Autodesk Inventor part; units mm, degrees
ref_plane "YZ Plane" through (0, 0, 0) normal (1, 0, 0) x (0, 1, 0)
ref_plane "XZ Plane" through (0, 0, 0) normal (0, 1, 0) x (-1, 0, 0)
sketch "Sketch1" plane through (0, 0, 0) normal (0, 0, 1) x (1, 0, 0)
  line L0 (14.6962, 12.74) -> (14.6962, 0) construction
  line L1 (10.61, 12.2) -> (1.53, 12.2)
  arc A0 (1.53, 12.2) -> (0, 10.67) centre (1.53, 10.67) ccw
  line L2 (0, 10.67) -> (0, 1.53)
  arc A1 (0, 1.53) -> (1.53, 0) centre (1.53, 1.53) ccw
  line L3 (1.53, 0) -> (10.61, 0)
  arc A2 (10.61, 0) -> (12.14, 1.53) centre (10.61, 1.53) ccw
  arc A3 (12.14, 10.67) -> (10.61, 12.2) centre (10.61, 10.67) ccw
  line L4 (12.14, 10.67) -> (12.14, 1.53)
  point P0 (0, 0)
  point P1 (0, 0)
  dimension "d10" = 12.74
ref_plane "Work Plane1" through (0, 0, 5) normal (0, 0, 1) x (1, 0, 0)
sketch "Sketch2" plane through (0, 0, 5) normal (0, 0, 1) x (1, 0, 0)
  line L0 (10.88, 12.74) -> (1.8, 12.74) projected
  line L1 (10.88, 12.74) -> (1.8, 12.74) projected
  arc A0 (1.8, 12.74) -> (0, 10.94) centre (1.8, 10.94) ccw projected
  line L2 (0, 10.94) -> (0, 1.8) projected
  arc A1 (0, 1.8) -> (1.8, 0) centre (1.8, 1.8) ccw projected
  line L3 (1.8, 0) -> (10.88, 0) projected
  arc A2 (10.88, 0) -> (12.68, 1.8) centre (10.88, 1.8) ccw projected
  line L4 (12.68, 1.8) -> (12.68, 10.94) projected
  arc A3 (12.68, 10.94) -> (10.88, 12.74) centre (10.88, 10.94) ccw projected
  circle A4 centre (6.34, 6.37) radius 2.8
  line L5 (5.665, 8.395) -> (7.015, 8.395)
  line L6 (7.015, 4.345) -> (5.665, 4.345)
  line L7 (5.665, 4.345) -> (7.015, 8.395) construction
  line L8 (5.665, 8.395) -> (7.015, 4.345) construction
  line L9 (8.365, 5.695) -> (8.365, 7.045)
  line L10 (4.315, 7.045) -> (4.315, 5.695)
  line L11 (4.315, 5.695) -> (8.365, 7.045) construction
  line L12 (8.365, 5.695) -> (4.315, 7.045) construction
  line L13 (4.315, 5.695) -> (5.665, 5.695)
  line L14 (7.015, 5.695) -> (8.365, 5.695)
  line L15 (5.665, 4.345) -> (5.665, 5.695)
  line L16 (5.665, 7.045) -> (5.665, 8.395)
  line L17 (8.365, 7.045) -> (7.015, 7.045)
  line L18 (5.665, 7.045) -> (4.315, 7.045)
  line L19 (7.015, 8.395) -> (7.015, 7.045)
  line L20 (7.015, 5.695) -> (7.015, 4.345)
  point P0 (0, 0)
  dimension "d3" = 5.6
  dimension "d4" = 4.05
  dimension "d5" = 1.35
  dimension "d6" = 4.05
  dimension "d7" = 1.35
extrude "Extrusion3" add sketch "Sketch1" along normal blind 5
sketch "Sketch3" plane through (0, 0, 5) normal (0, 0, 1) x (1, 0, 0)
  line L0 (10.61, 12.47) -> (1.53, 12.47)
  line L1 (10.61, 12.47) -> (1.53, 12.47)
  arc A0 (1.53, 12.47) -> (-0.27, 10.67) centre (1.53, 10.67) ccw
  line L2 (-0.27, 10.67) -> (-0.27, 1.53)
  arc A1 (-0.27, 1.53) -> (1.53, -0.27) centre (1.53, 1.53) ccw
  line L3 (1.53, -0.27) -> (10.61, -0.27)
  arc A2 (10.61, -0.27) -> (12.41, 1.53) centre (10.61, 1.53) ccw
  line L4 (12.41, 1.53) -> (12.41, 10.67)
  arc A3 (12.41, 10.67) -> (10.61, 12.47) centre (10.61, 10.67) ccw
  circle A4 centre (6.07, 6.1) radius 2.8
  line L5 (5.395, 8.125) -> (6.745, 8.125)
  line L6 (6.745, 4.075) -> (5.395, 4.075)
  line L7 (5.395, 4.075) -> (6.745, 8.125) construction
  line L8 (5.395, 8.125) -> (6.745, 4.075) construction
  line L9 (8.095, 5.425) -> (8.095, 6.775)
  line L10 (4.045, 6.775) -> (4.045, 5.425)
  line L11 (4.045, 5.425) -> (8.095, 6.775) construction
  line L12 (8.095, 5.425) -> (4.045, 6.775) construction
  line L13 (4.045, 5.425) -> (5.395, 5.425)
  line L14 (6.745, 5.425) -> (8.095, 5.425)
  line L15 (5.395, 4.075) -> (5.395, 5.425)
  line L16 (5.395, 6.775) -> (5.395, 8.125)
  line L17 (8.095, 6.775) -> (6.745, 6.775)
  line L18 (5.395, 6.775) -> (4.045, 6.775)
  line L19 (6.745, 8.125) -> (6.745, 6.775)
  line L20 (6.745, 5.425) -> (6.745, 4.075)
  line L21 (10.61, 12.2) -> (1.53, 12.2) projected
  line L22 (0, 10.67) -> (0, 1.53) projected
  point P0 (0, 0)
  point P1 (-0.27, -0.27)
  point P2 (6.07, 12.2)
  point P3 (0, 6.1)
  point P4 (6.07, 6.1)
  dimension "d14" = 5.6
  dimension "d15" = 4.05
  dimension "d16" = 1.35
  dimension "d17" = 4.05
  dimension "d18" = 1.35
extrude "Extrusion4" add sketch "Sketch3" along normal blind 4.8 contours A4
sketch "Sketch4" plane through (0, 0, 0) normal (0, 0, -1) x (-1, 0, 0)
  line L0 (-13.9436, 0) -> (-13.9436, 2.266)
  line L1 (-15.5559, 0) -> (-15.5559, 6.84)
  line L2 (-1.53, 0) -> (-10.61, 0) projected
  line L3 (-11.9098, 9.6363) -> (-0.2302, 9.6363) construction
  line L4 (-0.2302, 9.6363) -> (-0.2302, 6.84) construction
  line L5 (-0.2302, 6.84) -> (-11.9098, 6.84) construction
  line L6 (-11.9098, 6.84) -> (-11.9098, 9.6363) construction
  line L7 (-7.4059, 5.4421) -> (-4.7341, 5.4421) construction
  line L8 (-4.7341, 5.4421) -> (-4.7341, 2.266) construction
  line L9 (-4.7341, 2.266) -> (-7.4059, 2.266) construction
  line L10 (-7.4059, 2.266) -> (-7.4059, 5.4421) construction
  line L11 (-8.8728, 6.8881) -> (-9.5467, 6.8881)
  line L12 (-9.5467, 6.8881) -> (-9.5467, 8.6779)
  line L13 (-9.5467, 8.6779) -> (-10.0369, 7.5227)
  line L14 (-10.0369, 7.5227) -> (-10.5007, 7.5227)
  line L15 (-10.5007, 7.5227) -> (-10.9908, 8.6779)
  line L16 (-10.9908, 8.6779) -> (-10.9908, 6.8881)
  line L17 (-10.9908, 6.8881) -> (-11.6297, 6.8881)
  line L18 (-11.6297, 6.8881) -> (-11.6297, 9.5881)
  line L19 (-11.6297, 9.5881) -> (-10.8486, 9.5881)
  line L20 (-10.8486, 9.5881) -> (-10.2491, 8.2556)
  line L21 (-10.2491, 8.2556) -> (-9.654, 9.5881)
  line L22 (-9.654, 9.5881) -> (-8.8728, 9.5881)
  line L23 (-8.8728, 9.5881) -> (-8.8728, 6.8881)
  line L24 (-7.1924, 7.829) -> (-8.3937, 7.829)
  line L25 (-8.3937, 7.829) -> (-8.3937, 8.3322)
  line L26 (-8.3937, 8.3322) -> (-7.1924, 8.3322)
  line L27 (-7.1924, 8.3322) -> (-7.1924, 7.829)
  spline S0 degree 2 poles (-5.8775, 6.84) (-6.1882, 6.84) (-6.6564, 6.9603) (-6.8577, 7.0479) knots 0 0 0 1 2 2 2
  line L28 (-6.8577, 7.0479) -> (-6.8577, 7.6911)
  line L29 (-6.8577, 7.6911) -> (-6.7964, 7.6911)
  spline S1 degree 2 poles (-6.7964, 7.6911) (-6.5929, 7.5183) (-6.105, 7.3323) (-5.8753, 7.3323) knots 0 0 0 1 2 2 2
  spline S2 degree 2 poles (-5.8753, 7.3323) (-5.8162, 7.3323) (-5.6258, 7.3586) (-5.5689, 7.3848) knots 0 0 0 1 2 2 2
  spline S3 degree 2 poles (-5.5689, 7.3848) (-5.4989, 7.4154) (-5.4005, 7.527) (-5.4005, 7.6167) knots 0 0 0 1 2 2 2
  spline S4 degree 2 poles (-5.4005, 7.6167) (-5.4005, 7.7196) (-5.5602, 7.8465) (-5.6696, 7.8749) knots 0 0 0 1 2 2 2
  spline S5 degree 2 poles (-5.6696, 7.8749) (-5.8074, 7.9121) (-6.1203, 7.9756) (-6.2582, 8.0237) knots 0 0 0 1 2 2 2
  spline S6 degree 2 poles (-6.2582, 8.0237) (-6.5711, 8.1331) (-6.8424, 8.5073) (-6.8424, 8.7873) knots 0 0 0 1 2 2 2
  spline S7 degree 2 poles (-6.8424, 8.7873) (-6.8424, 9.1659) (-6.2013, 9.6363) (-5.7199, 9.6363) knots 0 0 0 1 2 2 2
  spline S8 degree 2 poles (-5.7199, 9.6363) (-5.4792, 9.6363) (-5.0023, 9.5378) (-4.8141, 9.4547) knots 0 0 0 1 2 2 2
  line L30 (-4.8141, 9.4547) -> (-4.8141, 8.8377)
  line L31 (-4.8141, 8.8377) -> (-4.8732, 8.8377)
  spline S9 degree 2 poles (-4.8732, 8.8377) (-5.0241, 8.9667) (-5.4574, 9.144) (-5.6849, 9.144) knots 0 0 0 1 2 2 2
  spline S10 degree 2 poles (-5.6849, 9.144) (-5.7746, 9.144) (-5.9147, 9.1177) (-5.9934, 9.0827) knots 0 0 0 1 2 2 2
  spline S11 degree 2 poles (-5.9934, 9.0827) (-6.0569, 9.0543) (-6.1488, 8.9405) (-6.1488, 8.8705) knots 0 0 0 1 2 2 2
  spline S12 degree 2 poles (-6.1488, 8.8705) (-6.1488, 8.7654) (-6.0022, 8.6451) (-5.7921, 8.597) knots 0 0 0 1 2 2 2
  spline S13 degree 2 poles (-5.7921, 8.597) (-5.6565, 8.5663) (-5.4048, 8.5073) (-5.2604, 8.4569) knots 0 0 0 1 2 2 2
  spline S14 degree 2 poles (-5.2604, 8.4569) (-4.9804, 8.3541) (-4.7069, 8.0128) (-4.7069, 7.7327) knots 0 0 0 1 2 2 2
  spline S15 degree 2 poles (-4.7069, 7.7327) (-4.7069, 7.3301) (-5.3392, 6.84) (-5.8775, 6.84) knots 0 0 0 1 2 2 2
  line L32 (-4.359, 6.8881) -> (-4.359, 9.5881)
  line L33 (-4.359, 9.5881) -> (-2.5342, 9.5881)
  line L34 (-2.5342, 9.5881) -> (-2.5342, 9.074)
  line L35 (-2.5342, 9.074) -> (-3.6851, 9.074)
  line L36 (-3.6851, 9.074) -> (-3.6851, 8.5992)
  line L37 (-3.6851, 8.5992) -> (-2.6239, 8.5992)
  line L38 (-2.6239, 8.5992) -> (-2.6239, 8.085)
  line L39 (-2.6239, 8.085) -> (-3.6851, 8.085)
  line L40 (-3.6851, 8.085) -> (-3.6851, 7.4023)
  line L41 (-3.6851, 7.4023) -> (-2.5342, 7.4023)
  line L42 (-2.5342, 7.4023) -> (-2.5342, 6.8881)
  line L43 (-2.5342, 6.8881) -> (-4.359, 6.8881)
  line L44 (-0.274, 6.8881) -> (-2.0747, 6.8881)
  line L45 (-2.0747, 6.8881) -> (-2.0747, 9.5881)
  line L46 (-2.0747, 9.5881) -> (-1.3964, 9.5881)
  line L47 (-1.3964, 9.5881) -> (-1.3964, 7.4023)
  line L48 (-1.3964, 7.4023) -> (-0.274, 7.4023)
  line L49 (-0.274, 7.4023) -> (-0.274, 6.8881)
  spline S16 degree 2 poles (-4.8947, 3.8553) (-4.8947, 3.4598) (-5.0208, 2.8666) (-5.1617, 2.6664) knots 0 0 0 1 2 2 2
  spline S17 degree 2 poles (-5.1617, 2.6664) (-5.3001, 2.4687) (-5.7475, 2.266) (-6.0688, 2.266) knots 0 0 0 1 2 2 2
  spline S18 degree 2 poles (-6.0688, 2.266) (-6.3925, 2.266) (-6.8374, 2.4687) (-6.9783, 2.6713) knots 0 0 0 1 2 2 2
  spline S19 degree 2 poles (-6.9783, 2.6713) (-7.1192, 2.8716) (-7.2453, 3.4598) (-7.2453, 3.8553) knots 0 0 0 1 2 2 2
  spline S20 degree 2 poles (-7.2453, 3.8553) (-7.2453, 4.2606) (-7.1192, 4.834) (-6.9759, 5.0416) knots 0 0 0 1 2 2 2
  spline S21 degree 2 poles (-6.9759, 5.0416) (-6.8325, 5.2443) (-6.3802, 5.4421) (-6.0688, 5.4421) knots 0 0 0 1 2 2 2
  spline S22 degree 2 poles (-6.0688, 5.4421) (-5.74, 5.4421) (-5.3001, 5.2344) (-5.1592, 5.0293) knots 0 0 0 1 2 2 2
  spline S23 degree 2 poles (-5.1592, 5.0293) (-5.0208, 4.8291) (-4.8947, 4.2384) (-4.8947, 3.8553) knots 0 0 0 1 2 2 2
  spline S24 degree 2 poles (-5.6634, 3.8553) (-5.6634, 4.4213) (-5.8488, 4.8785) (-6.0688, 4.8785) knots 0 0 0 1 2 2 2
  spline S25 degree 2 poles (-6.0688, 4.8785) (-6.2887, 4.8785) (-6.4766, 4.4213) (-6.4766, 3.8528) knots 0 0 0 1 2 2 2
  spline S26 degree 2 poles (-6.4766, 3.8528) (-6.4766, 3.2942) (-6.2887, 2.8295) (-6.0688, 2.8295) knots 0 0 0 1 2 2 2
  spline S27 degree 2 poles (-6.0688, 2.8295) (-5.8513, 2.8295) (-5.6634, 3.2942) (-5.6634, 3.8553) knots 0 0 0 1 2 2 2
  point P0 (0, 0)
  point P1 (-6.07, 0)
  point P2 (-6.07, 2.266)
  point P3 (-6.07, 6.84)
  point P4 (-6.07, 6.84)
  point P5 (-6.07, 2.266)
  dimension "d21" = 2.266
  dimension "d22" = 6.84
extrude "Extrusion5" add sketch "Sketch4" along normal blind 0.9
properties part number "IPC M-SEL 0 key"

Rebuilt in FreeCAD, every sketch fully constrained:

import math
import FreeCAD as App
import Part
import Sketcher
from FreeCAD import Vector
Q = App.Units.Quantity


def add_polygon(sketch, points):
    """Adds a closed chain of lines whose ends are joined by coincident constraints."""
    first, n = sketch.GeometryCount, len(points)
    for a, b in zip(points, points[1:] + points[:1]):
        sketch.addGeometry(Part.LineSegment(App.Vector(*a, 0), App.Vector(*b, 0)), False)
    for i in range(n):
        sketch.addConstraint(Sketcher.Constraint("Coincident", first + i, 2, first + (i + 1) % n, 1))

doc = App.newDocument("Part")
body = doc.addObject("PartDesign::Body", "Body")

# Sketch on XY plane
sketch1 = body.newObject("Sketcher::SketchObject", "Sketch")
sketch1.AttachmentSupport = (doc.getObject("XY_Plane"), [""])
sketch1.MapMode = "FlatFace"
sketch1.addGeometry([
    Part.ArcOfCircle(Part.Circle(Vector(10.6, 10.7, 0), Vector(0, 0, 1), 1.5), math.radians(0), math.radians(90)),  # 0
    Part.LineSegment(Vector(10.6, 12.2, 0), Vector(1.5, 12.2, 0)),  # 1
    Part.ArcOfCircle(Part.Circle(Vector(1.5, 10.7, 0), Vector(0, 0, 1), 1.5), math.radians(90), math.radians(180)),  # 2
    Part.LineSegment(Vector(0, 10.7, 0), Vector(0, 1.5, 0)),  # 3
    Part.ArcOfCircle(Part.Circle(Vector(1.5, 1.5, 0), Vector(0, 0, 1), 1.5), math.radians(180), math.radians(270)),  # 4
    Part.LineSegment(Vector(1.5, 0, 0), Vector(10.6, 0, 0)),  # 5
    Part.ArcOfCircle(Part.Circle(Vector(10.6, 1.5, 0), Vector(0, 0, 1), 1.5), math.radians(-90), math.radians(0)),  # 6
    Part.LineSegment(Vector(12.1, 1.5, 0), Vector(12.1, 10.7, 0)),  # 7
], False)
sketch1.addConstraint([
    Sketcher.Constraint("Tangent", 0, 2, 1, 1),
    Sketcher.Constraint("Tangent", 1, 2, 2, 1),
    Sketcher.Constraint("Tangent", 2, 2, 3, 1),
    Sketcher.Constraint("Tangent", 3, 2, 4, 1),
    Sketcher.Constraint("Tangent", 4, 2, 5, 1),
    Sketcher.Constraint("Tangent", 5, 2, 6, 1),
    Sketcher.Constraint("Tangent", 6, 2, 7, 1),
    Sketcher.Constraint("Tangent", 7, 2, 0, 1),
    Sketcher.Constraint("Horizontal", 1),
    Sketcher.Constraint("Vertical", 3),
    Sketcher.Constraint("Horizontal", 5),
    Sketcher.Constraint("Vertical", 7),
    Sketcher.Constraint("Equal", 0, 2),
    Sketcher.Constraint("Equal", 2, 4),
    Sketcher.Constraint("Equal", 4, 6),
    Sketcher.Constraint("PointOnObject", 2, 2, -2),
    Sketcher.Constraint("PointOnObject", 4, 2, -1),
    Sketcher.Constraint("Radius", 0, Q("1.53 mm")),
    Sketcher.Constraint("DistanceX", 1, 2, 1, 1, Q("9.08 mm")),
    Sketcher.Constraint("DistanceY", 3, 2, 3, 1, Q("9.14 mm")),
])
pad1 = body.newObject("PartDesign::Pad", "Pad")
pad1.Profile = sketch1
pad1.Length = 5

# Sketch on XY plane
sketch2 = body.newObject("Sketcher::SketchObject", "Sketch001")
sketch2.AttachmentSupport = (doc.getObject("XY_Plane"), [""])
sketch2.MapMode = "FlatFace"
sketch2.AttachmentOffset = App.Placement(Vector(0, 0, 5), App.Rotation())
sketch2.addGeometry(Part.Circle(Vector(6.1, 6.1, 0), Vector(0, 0, 1), 2.8), False)  # 0
add_polygon(sketch2, [(5.4, 6.8), (5.4, 8.1), (6.7, 8.1), (6.7, 6.8), (8.1, 6.8), (8.1, 5.4), (6.7, 5.4), (6.7, 4.1), (5.4, 4.1), (5.4, 5.4), (4, 5.4), (4, 6.8)])  # lines 1-12
sketch2.addConstraint([
    Sketcher.Constraint("Vertical", 1),
    Sketcher.Constraint("Horizontal", 2),
    Sketcher.Constraint("Vertical", 3),
    Sketcher.Constraint("Horizontal", 4),
    Sketcher.Constraint("Vertical", 5),
    Sketcher.Constraint("Horizontal", 6),
    Sketcher.Constraint("Vertical", 7),
    Sketcher.Constraint("Horizontal", 8),
    Sketcher.Constraint("Vertical", 9),
    Sketcher.Constraint("Horizontal", 10),
    Sketcher.Constraint("Vertical", 11),
    Sketcher.Constraint("Horizontal", 12),
    Sketcher.Constraint("Horizontal", 6, 2, 9, 2),
    Sketcher.Constraint("Horizontal", 4, 2, 11, 2),
    Sketcher.Constraint("Vertical", 3, 2, 6, 2),
    Sketcher.Constraint("Vertical", 1, 2, 8, 2),
    Sketcher.Constraint("Equal", 2, 4),
    Sketcher.Constraint("Equal", 8, 10),
    Sketcher.Constraint("Equal", 12, 1),
    Sketcher.Constraint("Equal", 3, 5),
    Sketcher.Constraint("Equal", 5, 7),
    Sketcher.Constraint("Diameter", 0, Q("5.6 mm")),
    Sketcher.Constraint("DistanceX", 2, 1, 2, 2, Q("1.35 mm")),
    Sketcher.Constraint("DistanceY", -1, 1, 0, 3, Q("6.1 mm")),
    Sketcher.Constraint("DistanceX", -1, 1, 0, 3, Q("6.07 mm")),
    Sketcher.Constraint("DistanceX", -1, 1, 1, 2, Q("5.395 mm")),
    Sketcher.Constraint("DistanceY", -1, 1, 1, 2, Q("8.125 mm")),
])
pad2 = body.newObject("PartDesign::Pad", "Pad001")
pad2.Profile = sketch2
pad2.Length = 4.8

# Sketch on XY plane
sketch3 = body.newObject("Sketcher::SketchObject", "Sketch002")
sketch3.AttachmentSupport = (doc.getObject("XY_Plane"), [""])
sketch3.MapMode = "FlatFace"
add_polygon(sketch3, [(9.5467, 6.8881), (8.8728, 6.8881), (8.8728, 9.5881), (9.654, 9.5881), (10.2491, 8.2556), (10.8486, 9.5881), (11.6297, 9.5881), (11.6297, 6.8881), (10.9908, 6.8881), (10.9908, 8.6779), (10.5007, 7.5227), (10.0369, 7.5227), (9.5467, 8.6779)])  # lines 0-12
add_polygon(sketch3, [(8.3937, 7.829), (7.1924, 7.829), (7.1924, 8.3322), (8.3937, 8.3322)])  # lines 13-16
sketch3.addGeometry(Part.BSplineCurve([Vector(5.8775, 6.84, 0), Vector(6.1882, 6.84, 0), Vector(6.6564, 6.9603, 0), Vector(6.8577, 7.0479, 0)], [3, 1, 3], [0, 1, 2], False, 2, [1, 1, 1, 1], False), False)  # 17
sketch3.addGeometry(Part.BSplineCurve([Vector(4.7069, 7.7327, 0), Vector(4.7069, 7.3301, 0), Vector(5.3392, 6.84, 0), Vector(5.8775, 6.84, 0)], [3, 1, 3], [0, 1, 2], False, 2, [1, 1, 1, 1], False), False)  # 18
sketch3.addGeometry(Part.BSplineCurve([Vector(5.2604, 8.4569, 0), Vector(4.9804, 8.3541, 0), Vector(4.7069, 8.0128, 0), Vector(4.7069, 7.7327, 0)], [3, 1, 3], [0, 1, 2], False, 2, [1, 1, 1, 1], False), False)  # 19
sketch3.addGeometry(Part.BSplineCurve([Vector(5.7921, 8.597, 0), Vector(5.6565, 8.5663, 0), Vector(5.4048, 8.5073, 0), Vector(5.2604, 8.4569, 0)], [3, 1, 3], [0, 1, 2], False, 2, [1, 1, 1, 1], False), False)  # 20
sketch3.addGeometry(Part.BSplineCurve([Vector(6.1488, 8.8705, 0), Vector(6.1488, 8.7654, 0), Vector(6.0022, 8.6451, 0), Vector(5.7921, 8.597, 0)], [3, 1, 3], [0, 1, 2], False, 2, [1, 1, 1, 1], False), False)  # 21
sketch3.addGeometry(Part.BSplineCurve([Vector(5.9934, 9.0827, 0), Vector(6.0569, 9.0543, 0), Vector(6.1488, 8.9405, 0), Vector(6.1488, 8.8705, 0)], [3, 1, 3], [0, 1, 2], False, 2, [1, 1, 1, 1], False), False)  # 22
sketch3.addGeometry(Part.BSplineCurve([Vector(5.6849, 9.144, 0), Vector(5.7746, 9.144, 0), Vector(5.9147, 9.1177, 0), Vector(5.9934, 9.0827, 0)], [3, 1, 3], [0, 1, 2], False, 2, [1, 1, 1, 1], False), False)  # 23
sketch3.addGeometry(Part.BSplineCurve([Vector(4.8732, 8.8377, 0), Vector(5.0241, 8.9667, 0), Vector(5.4574, 9.144, 0), Vector(5.6849, 9.144, 0)], [3, 1, 3], [0, 1, 2], False, 2, [1, 1, 1, 1], False), False)  # 24
sketch3.addGeometry(Part.LineSegment(Vector(4.8732, 8.8377, 0), Vector(4.8141, 8.8377, 0)), False)  # 25
sketch3.addGeometry(Part.LineSegment(Vector(4.8141, 8.8377, 0), Vector(4.8141, 9.4547, 0)), False)  # 26
sketch3.addGeometry(Part.BSplineCurve([Vector(5.7199, 9.6363, 0), Vector(5.4792, 9.6363, 0), Vector(5.0023, 9.5378, 0), Vector(4.8141, 9.4547, 0)], [3, 1, 3], [0, 1, 2], False, 2, [1, 1, 1, 1], False), False)  # 27
sketch3.addGeometry(Part.BSplineCurve([Vector(6.8424, 8.7873, 0), Vector(6.8424, 9.1659, 0), Vector(6.2013, 9.6363, 0), Vector(5.7199, 9.6363, 0)], [3, 1, 3], [0, 1, 2], False, 2, [1, 1, 1, 1], False), False)  # 28
sketch3.addGeometry(Part.BSplineCurve([Vector(6.2582, 8.0237, 0), Vector(6.5711, 8.1331, 0), Vector(6.8424, 8.5073, 0), Vector(6.8424, 8.7873, 0)], [3, 1, 3], [0, 1, 2], False, 2, [1, 1, 1, 1], False), False)  # 29
sketch3.addGeometry(Part.BSplineCurve([Vector(5.6696, 7.8749, 0), Vector(5.8074, 7.9121, 0), Vector(6.1203, 7.9756, 0), Vector(6.2582, 8.0237, 0)], [3, 1, 3], [0, 1, 2], False, 2, [1, 1, 1, 1], False), False)  # 30
sketch3.addGeometry(Part.BSplineCurve([Vector(5.4005, 7.6167, 0), Vector(5.4005, 7.7196, 0), Vector(5.5602, 7.8465, 0), Vector(5.6696, 7.8749, 0)], [3, 1, 3], [0, 1, 2], False, 2, [1, 1, 1, 1], False), False)  # 31
sketch3.addGeometry(Part.BSplineCurve([Vector(5.5689, 7.3848, 0), Vector(5.4989, 7.4154, 0), Vector(5.4005, 7.527, 0), Vector(5.4005, 7.6167, 0)], [3, 1, 3], [0, 1, 2], False, 2, [1, 1, 1, 1], False), False)  # 32
sketch3.addGeometry(Part.BSplineCurve([Vector(5.8753, 7.3323, 0), Vector(5.8162, 7.3323, 0), Vector(5.6258, 7.3586, 0), Vector(5.5689, 7.3848, 0)], [3, 1, 3], [0, 1, 2], False, 2, [1, 1, 1, 1], False), False)  # 33
sketch3.addGeometry(Part.BSplineCurve([Vector(6.7964, 7.6911, 0), Vector(6.5929, 7.5183, 0), Vector(6.105, 7.3323, 0), Vector(5.8753, 7.3323, 0)], [3, 1, 3], [0, 1, 2], False, 2, [1, 1, 1, 1], False), False)  # 34
sketch3.addGeometry(Part.LineSegment(Vector(6.7964, 7.6911, 0), Vector(6.8577, 7.6911, 0)), False)  # 35
sketch3.addGeometry(Part.LineSegment(Vector(6.8577, 7.6911, 0), Vector(6.8577, 7.0479, 0)), False)  # 36
add_polygon(sketch3, [(4.359, 9.5881), (4.359, 6.8881), (2.5342, 6.8881), (2.5342, 7.4023), (3.6851, 7.4023), (3.6851, 8.085), (2.6239, 8.085), (2.6239, 8.5992), (3.6851, 8.5992), (3.6851, 9.074), (2.5342, 9.074), (2.5342, 9.5881)])  # lines 37-48
add_polygon(sketch3, [(2.0747, 6.8881), (0.274, 6.8881), (0.274, 7.4023), (1.3964, 7.4023), (1.3964, 9.5881), (2.0747, 9.5881)])  # lines 49-54
sketch3.addGeometry(Part.BSplineCurve([Vector(4.8947, 3.8553, 0), Vector(4.8947, 3.4598, 0), Vector(5.0208, 2.8666, 0), Vector(5.1617, 2.6664, 0)], [3, 1, 3], [0, 1, 2], False, 2, [1, 1, 1, 1], False), False)  # 55
sketch3.addGeometry(Part.BSplineCurve([Vector(5.1592, 5.0293, 0), Vector(5.0208, 4.8291, 0), Vector(4.8947, 4.2384, 0), Vector(4.8947, 3.8553, 0)], [3, 1, 3], [0, 1, 2], False, 2, [1, 1, 1, 1], False), False)  # 56
sketch3.addGeometry(Part.BSplineCurve([Vector(6.0688, 5.4421, 0), Vector(5.74, 5.4421, 0), Vector(5.3001, 5.2344, 0), Vector(5.1592, 5.0293, 0)], [3, 1, 3], [0, 1, 2], False, 2, [1, 1, 1, 1], False), False)  # 57
sketch3.addGeometry(Part.BSplineCurve([Vector(6.9759, 5.0416, 0), Vector(6.8325, 5.2443, 0), Vector(6.3802, 5.4421, 0), Vector(6.0688, 5.4421, 0)], [3, 1, 3], [0, 1, 2], False, 2, [1, 1, 1, 1], False), False)  # 58
sketch3.addGeometry(Part.BSplineCurve([Vector(7.2453, 3.8553, 0), Vector(7.2453, 4.2606, 0), Vector(7.1192, 4.834, 0), Vector(6.9759, 5.0416, 0)], [3, 1, 3], [0, 1, 2], False, 2, [1, 1, 1, 1], False), False)  # 59
sketch3.addGeometry(Part.BSplineCurve([Vector(6.9783, 2.6713, 0), Vector(7.1192, 2.8716, 0), Vector(7.2453, 3.4598, 0), Vector(7.2453, 3.8553, 0)], [3, 1, 3], [0, 1, 2], False, 2, [1, 1, 1, 1], False), False)  # 60
sketch3.addGeometry(Part.BSplineCurve([Vector(6.0688, 2.266, 0), Vector(6.3925, 2.266, 0), Vector(6.8374, 2.4687, 0), Vector(6.9783, 2.6713, 0)], [3, 1, 3], [0, 1, 2], False, 2, [1, 1, 1, 1], False), False)  # 61
sketch3.addGeometry(Part.BSplineCurve([Vector(5.1617, 2.6664, 0), Vector(5.3001, 2.4687, 0), Vector(5.7475, 2.266, 0), Vector(6.0688, 2.266, 0)], [3, 1, 3], [0, 1, 2], False, 2, [1, 1, 1, 1], False), False)  # 62
sketch3.addGeometry(Part.BSplineCurve([Vector(5.6634, 3.8553, 0), Vector(5.6634, 4.4213, 0), Vector(5.8488, 4.8785, 0), Vector(6.0688, 4.8785, 0)], [3, 1, 3], [0, 1, 2], False, 2, [1, 1, 1, 1], False), False)  # 63
sketch3.addGeometry(Part.BSplineCurve([Vector(6.0688, 2.8295, 0), Vector(5.8513, 2.8295, 0), Vector(5.6634, 3.2942, 0), Vector(5.6634, 3.8553, 0)], [3, 1, 3], [0, 1, 2], False, 2, [1, 1, 1, 1], False), False)  # 64
sketch3.addGeometry(Part.BSplineCurve([Vector(6.4766, 3.8528, 0), Vector(6.4766, 3.2942, 0), Vector(6.2887, 2.8295, 0), Vector(6.0688, 2.8295, 0)], [3, 1, 3], [0, 1, 2], False, 2, [1, 1, 1, 1], False), False)  # 65
sketch3.addGeometry(Part.BSplineCurve([Vector(6.0688, 4.8785, 0), Vector(6.2887, 4.8785, 0), Vector(6.4766, 4.4213, 0), Vector(6.4766, 3.8528, 0)], [3, 1, 3], [0, 1, 2], False, 2, [1, 1, 1, 1], False), False)  # 66
sketch3.addConstraint([
    Sketcher.Constraint("Block", 17),
    Sketcher.Constraint("Block", 18),
    Sketcher.Constraint("Block", 19),
    Sketcher.Constraint("Block", 20),
    Sketcher.Constraint("Block", 21),
    Sketcher.Constraint("Block", 22),
    Sketcher.Constraint("Block", 23),
    Sketcher.Constraint("Block", 24),
    Sketcher.Constraint("Block", 27),
    Sketcher.Constraint("Block", 28),
    Sketcher.Constraint("Block", 29),
    Sketcher.Constraint("Block", 30),
    Sketcher.Constraint("Block", 31),
    Sketcher.Constraint("Block", 32),
    Sketcher.Constraint("Block", 33),
    Sketcher.Constraint("Block", 34),
    Sketcher.Constraint("Block", 55),
    Sketcher.Constraint("Block", 56),
    Sketcher.Constraint("Block", 57),
    Sketcher.Constraint("Block", 58),
    Sketcher.Constraint("Block", 59),
    Sketcher.Constraint("Block", 60),
    Sketcher.Constraint("Block", 61),
    Sketcher.Constraint("Block", 62),
    Sketcher.Constraint("Block", 63),
    Sketcher.Constraint("Block", 64),
    Sketcher.Constraint("Block", 65),
    Sketcher.Constraint("Block", 66),
    Sketcher.Constraint("Coincident", 24, 1, 25, 1),
    Sketcher.Constraint("Coincident", 25, 2, 26, 1),
    Sketcher.Constraint("Coincident", 26, 2, 27, 2),
    Sketcher.Constraint("Coincident", 34, 1, 35, 1),
    Sketcher.Constraint("Coincident", 35, 2, 36, 1),
    Sketcher.Constraint("Coincident", 36, 2, 17, 2),
    Sketcher.Constraint("Horizontal", 0),
    Sketcher.Constraint("Vertical", 1),
    Sketcher.Constraint("Horizontal", 2),
    Sketcher.Constraint("Horizontal", 5),
    Sketcher.Constraint("Vertical", 6),
    Sketcher.Constraint("Horizontal", 7),
    Sketcher.Constraint("Vertical", 8),
    Sketcher.Constraint("Horizontal", 10),
    Sketcher.Constraint("Vertical", 12),
    Sketcher.Constraint("Horizontal", 13),
    Sketcher.Constraint("Vertical", 14),
    Sketcher.Constraint("Horizontal", 15),
    Sketcher.Constraint("Vertical", 16),
    Sketcher.Constraint("Horizontal", 25),
    Sketcher.Constraint("Vertical", 26),
    Sketcher.Constraint("Horizontal", 35),
    Sketcher.Constraint("Vertical", 36),
    Sketcher.Constraint("Vertical", 37),
    Sketcher.Constraint("Horizontal", 38),
    Sketcher.Constraint("Vertical", 39),
    Sketcher.Constraint("Horizontal", 40),
    Sketcher.Constraint("Vertical", 41),
    Sketcher.Constraint("Horizontal", 42),
    Sketcher.Constraint("Vertical", 43),
    Sketcher.Constraint("Horizontal", 44),
    Sketcher.Constraint("Vertical", 45),
    Sketcher.Constraint("Horizontal", 46),
    Sketcher.Constraint("Vertical", 47),
    Sketcher.Constraint("Horizontal", 48),
    Sketcher.Constraint("Horizontal", 49),
    Sketcher.Constraint("Vertical", 50),
    Sketcher.Constraint("Horizontal", 51),
    Sketcher.Constraint("Vertical", 52),
    Sketcher.Constraint("Horizontal", 53),
    Sketcher.Constraint("Vertical", 54),
    Sketcher.Constraint("Horizontal", 2, 2, 4, 2),
    Sketcher.Constraint("Horizontal", 0, 2, 6, 2),
    Sketcher.Constraint("Horizontal", 8, 2, 11, 2),
    Sketcher.Constraint("Horizontal", 12, 2, 37, 2),
    Sketcher.Constraint("Horizontal", 5, 2, 47, 2),
    Sketcher.Constraint("Horizontal", 38, 2, 49, 2),
    Sketcher.Constraint("Horizontal", 40, 2, 50, 2),
    Sketcher.Constraint("Horizontal", 48, 2, 52, 2),
    Sketcher.Constraint("Vertical", 41, 2, 44, 2),
    Sketcher.Constraint("Vertical", 39, 2, 46, 2),
    Sketcher.Constraint("Equal", 2, 5),
    Sketcher.Constraint("Equal", 39, 43),
    Sketcher.Constraint("Equal", 43, 47),
    Sketcher.Constraint("Equal", 9, 11),
    Sketcher.Constraint("DistanceY", 1, 1, 1, 2, Q("2.7 mm")),
    Sketcher.Constraint("Angle", 9, Q("-112.9894 deg")),
    Sketcher.Constraint("DistanceX", 0, 2, 0, 1, Q("0.674 mm")),
    Sketcher.Constraint("DistanceX", 5, 1, 5, 2, Q("0.781 mm")),
    Sketcher.Constraint("DistanceX", 7, 2, 7, 1, Q("0.639 mm")),
    Sketcher.Constraint("DistanceX", 40, 1, 40, 2, Q("1.151 mm")),
    Sketcher.Constraint("DistanceY", 47, 1, 47, 2, Q("0.514 mm")),
    Sketcher.Constraint("DistanceX", 9, 2, 7, 2, Q("0.49 mm")),
    Sketcher.Constraint("DistanceX", 38, 2, 25, 2, Q("2.28 mm")),
    Sketcher.Constraint("DistanceX", 49, 2, 42, 2, Q("2.35 mm")),
    Sketcher.Constraint("DistanceX", 10, 2, 10, 1, Q("0.4638 mm")),
    Sketcher.Constraint("DistanceX", 13, 2, 13, 1, Q("1.2013 mm")),
    Sketcher.Constraint("DistanceX", 38, 2, 38, 1, Q("1.8248 mm")),
    Sketcher.Constraint("DistanceX", 42, 2, 42, 1, Q("1.0612 mm")),
    Sketcher.Constraint("DistanceX", 49, 2, 49, 1, Q("1.8007 mm")),
    Sketcher.Constraint("DistanceX", 51, 1, 51, 2, Q("1.1224 mm")),
    Sketcher.Constraint("DistanceY", 8, 1, 8, 2, Q("1.7898 mm")),
    Sketcher.Constraint("DistanceY", 14, 1, 14, 2, Q("0.5032 mm")),
    Sketcher.Constraint("DistanceY", 41, 1, 41, 2, Q("0.6827 mm")),
    Sketcher.Constraint("DistanceY", -1, 1, 0, 2, Q("6.888 mm")),
    Sketcher.Constraint("DistanceX", -1, 1, 2, 2, Q("9.654 mm")),
    Sketcher.Constraint("DistanceX", -1, 1, 3, 2, Q("10.249 mm")),
    Sketcher.Constraint("DistanceY", -1, 1, 13, 2, Q("7.829 mm")),
    Sketcher.Constraint("DistanceY", 9, 2, 3, 2, Q("0.733 mm")),
    Sketcher.Constraint("DistanceX", 15, 2, 11, 2, Q("1.153 mm")),
])
pad3 = body.newObject("PartDesign::Pad", "Pad002")
pad3.Profile = sketch3
pad3.Length = 0.9
pad3.Reversed = True

doc.recompute()
